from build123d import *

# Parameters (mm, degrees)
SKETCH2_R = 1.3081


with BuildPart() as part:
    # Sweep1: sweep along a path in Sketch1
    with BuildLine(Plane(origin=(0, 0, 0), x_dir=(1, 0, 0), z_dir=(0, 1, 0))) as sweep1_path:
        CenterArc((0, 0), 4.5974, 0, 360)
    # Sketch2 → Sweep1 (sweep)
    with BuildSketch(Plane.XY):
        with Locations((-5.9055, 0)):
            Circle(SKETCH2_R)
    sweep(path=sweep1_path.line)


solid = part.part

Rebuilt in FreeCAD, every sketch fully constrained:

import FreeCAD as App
import Part
import Sketcher
from FreeCAD import Vector
Q = App.Units.Quantity

doc = App.newDocument("Part")
params = doc.addObject("Spreadsheet::Sheet", "Params")
for row, (alias, value) in enumerate([
    ("sketch1_diameter", "0.103 in"),
    ("sketch2_diameter", "0.362 in"),
], start=1):
    params.set(f"A{row}", alias)
    params.set(f"B{row}", "=" + value)
    params.setAlias(f"B{row}", alias)

body = doc.addObject("PartDesign::Body", "Body")

# Sketch on XY plane
sketch1 = body.newObject("Sketcher::SketchObject", "Sketch")
sketch1.AttachmentSupport = (doc.getObject("XY_Plane"), [""])
sketch1.MapMode = "FlatFace"
sketch1.addGeometry(Part.Circle(Vector(-5.9, 0, 0), Vector(0, 0, 1), 1.3), False)
sketch1.addConstraint([
    Sketcher.Constraint("PointOnObject", 0, 3, -1),
    Sketcher.Constraint("Diameter", 0, Q("0.103 in")),
    Sketcher.Constraint("DistanceX", 0, 3, -1, 1, Q("0.2325 in")),
])
sketch1.setExpression("Constraints[1]", "Params.sketch1_diameter")

# Sketch on XZ plane
sketch2 = body.newObject("Sketcher::SketchObject", "Sketch001")
sketch2.AttachmentSupport = (doc.getObject("XZ_Plane"), [""])
sketch2.MapMode = "FlatFace"
sketch2.addGeometry(Part.Circle(Vector(0, 0, 0), Vector(0, 0, 1), 4.6), False)
sketch2.addConstraint([
    Sketcher.Constraint("Coincident", 0, 3, -1, 1),
    Sketcher.Constraint("Diameter", 0, Q("0.362 in")),
])
sketch2.setExpression("Constraints[1]", "Params.sketch2_diameter")
doc.recompute()

additivepipe = body.newObject("PartDesign::AdditivePipe", "AdditivePipe")
additivepipe.Profile = sketch1
additivepipe.Spine = (sketch2, ["Edge1"])

doc.recompute()
